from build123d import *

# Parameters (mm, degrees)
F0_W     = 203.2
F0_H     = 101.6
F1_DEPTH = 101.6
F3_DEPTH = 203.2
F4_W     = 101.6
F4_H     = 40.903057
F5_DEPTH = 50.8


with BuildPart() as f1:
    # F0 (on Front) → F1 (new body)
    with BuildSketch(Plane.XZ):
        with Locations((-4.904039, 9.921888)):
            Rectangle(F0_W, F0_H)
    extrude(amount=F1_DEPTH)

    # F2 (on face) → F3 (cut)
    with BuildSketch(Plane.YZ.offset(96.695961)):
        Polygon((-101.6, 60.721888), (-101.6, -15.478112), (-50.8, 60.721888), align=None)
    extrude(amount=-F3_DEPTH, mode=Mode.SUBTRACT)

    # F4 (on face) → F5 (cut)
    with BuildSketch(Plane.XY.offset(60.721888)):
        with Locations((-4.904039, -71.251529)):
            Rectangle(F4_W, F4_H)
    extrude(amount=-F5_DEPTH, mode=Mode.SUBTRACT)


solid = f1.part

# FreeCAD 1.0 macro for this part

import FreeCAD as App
import Part
import Sketcher
Q = App.Units.Quantity


def add_polygon(sketch, points):
    """Adds a closed chain of lines whose ends are joined by coincident constraints."""
    first, n = sketch.GeometryCount, len(points)
    for a, b in zip(points, points[1:] + points[:1]):
        sketch.addGeometry(Part.LineSegment(App.Vector(*a, 0), App.Vector(*b, 0)), False)
    for i in range(n):
        sketch.addConstraint(Sketcher.Constraint("Coincident", first + i, 2, first + (i + 1) % n, 1))

doc = App.newDocument("Part")
params = doc.addObject("Spreadsheet::Sheet", "Params")
for row, (alias, value) in enumerate([
    ("sketch1_width", "8 in"),
    ("sketch1_height", "4 in"),
    ("pad1_length", "4 in"),
    ("sketch2_width", "2 in"),
    ("sketch2_height", "3 in"),
    ("pocket1_length", "8 in"),
    ("sketch3_width", "4 in"),
    ("pocket2_length", "2 in"),
], start=1):
    params.set(f"A{row}", alias)
    params.set(f"B{row}", "=" + value)
    params.setAlias(f"B{row}", alias)

body = doc.addObject("PartDesign::Body", "Body")

sketch1 = body.newObject("Sketcher::SketchObject", "Sketch")
sketch1.AttachmentSupport = (doc.getObject("XZ_Plane"), [""])
sketch1.MapMode = "FlatFace"
add_polygon(sketch1, [(-106.504039, 60.721888), (-106.504039, -40.878112), (96.695961, -40.878112), (96.695961, 60.721888)])
sketch1.addConstraint([
    Sketcher.Constraint("Vertical", 0),
    Sketcher.Constraint("Horizontal", 1),
    Sketcher.Constraint("Vertical", 2),
    Sketcher.Constraint("Horizontal", 3),
    Sketcher.Constraint("DistanceX", 1, 1, 1, 2, Q("8 in")),
    Sketcher.Constraint("DistanceY", 0, 2, 0, 1, Q("4 in")),
    Sketcher.Constraint("DistanceX", 0, 2, -1, 1, 106.504039),
    Sketcher.Constraint("DistanceY", 0, 2, -1, 1, 40.878112),
])
sketch1.setExpression("Constraints[8]", "Params.sketch1_width")
sketch1.setExpression("Constraints[9]", "Params.sketch1_height")
pad1 = body.newObject("PartDesign::Pad", "Pad")
pad1.Profile = sketch1
pad1.setExpression("Length", "Params.pad1_length")

sketch2 = body.newObject("Sketcher::SketchObject", "Sketch001")
sketch2.AttachmentSupport = (doc.getObject("YZ_Plane"), [""])
sketch2.MapMode = "FlatFace"
sketch2.AttachmentOffset = App.Placement(App.Vector(0, 0, 96.695961), App.Rotation())
add_polygon(sketch2, [(-101.6, 60.721888), (-101.6, -15.478112), (-50.8, 60.721888)])
sketch2.addConstraint([
    Sketcher.Constraint("Vertical", 0),
    Sketcher.Constraint("Horizontal", 2),
    Sketcher.Constraint("DistanceX", 2, 2, 2, 1, Q("2 in")),
    Sketcher.Constraint("DistanceY", 0, 2, 0, 1, Q("3 in")),
    Sketcher.Constraint("DistanceX", 0, 2, -1, 1, Q("4 in")),
    Sketcher.Constraint("DistanceY", 0, 2, -1, 1, 15.478112),
])
sketch2.setExpression("Constraints[5]", "Params.sketch2_width")
sketch2.setExpression("Constraints[6]", "Params.sketch2_height")
pocket1 = body.newObject("PartDesign::Pocket", "Pocket")
pocket1.Profile = sketch2
pocket1.setExpression("Length", "Params.pocket1_length")

sketch3 = body.newObject("Sketcher::SketchObject", "Sketch002")
sketch3.AttachmentSupport = (doc.getObject("XY_Plane"), [""])
sketch3.MapMode = "FlatFace"
sketch3.AttachmentOffset = App.Placement(App.Vector(0, 0, 60.721888), App.Rotation())
add_polygon(sketch3, [(-55.704039, -50.800001), (-55.704039, -91.703057), (45.895961, -91.703057), (45.895961, -50.800001)])
sketch3.addConstraint([
    Sketcher.Constraint("Vertical", 0),
    Sketcher.Constraint("Horizontal", 1),
    Sketcher.Constraint("Vertical", 2),
    Sketcher.Constraint("Horizontal", 3),
    Sketcher.Constraint("DistanceX", 1, 1, 1, 2, Q("4 in")),
    Sketcher.Constraint("DistanceY", 2, 2, -1, 1, Q("2 in")),
    Sketcher.Constraint("DistanceY", 0, 2, 0, 1, 40.903057),
    Sketcher.Constraint("DistanceX", 0, 2, -1, 1, 55.704039),
])
sketch3.setExpression("Constraints[8]", "Params.sketch3_width")
pocket2 = body.newObject("PartDesign::Pocket", "Pocket001")
pocket2.Profile = sketch3
pocket2.setExpression("Length", "Params.pocket2_length")

doc.recompute()
